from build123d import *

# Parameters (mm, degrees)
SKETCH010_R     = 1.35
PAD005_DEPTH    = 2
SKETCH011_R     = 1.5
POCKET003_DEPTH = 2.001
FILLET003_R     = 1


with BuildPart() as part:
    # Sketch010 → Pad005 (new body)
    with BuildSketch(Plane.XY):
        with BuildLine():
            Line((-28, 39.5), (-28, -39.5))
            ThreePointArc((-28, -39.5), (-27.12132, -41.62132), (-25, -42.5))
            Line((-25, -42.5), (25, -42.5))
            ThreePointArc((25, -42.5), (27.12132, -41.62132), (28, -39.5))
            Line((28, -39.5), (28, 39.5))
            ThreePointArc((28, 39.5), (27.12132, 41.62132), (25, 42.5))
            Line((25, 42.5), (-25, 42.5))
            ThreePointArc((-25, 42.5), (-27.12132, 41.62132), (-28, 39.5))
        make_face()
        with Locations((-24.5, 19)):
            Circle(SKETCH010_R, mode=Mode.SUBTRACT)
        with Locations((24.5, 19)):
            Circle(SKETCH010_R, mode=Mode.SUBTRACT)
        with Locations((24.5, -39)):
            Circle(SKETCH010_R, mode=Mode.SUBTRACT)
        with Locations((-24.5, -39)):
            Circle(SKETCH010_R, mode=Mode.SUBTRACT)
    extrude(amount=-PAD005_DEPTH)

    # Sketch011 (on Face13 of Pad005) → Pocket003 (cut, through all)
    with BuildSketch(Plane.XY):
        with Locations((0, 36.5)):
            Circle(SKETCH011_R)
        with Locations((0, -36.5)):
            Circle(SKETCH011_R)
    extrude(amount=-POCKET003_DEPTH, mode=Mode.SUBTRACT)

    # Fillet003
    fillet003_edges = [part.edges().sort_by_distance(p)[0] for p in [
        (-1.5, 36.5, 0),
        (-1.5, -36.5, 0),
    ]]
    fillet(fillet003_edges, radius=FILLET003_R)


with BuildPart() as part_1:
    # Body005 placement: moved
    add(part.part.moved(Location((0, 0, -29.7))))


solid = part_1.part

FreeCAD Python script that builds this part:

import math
import FreeCAD as App
import Part
import Sketcher
from FreeCAD import Vector


def edges_at(feature, points):
    """Names of the edges that pass closest to the given points."""
    edges = feature.Shape.Edges
    near = lambda p: min(range(len(edges)), key=lambda i: edges[i].distToShape(Part.Vertex(*p))[0])
    return sorted({f"Edge{near(p) + 1}" for p in points})

doc = App.newDocument("Part")
params = doc.addObject("Spreadsheet::Sheet", "Params")
for row, (alias, value) in enumerate([
    ("sketch1_radius", "3.000001 mm"),
    ("sketch1_diameter", "2.7 mm"),
    ("sketch1_width", "50 mm"),
    ("sketch1_height", "79 mm"),
    ("pad1_length", "2 mm"),
    ("sketch2_diameter", "3 mm"),
    ("fillet_radius", "1 mm"),
], start=1):
    params.set(f"A{row}", alias)
    params.set(f"B{row}", "=" + value)
    params.setAlias(f"B{row}", alias)

body = doc.addObject("PartDesign::Body", "Body")

sketch1 = doc.addObject("Sketcher::SketchObject", "Sketch")
body.addObject(sketch1)
sketch1.AttachmentSupport = (doc.XY_Plane, [""])
sketch1.MapMode = "FlatFace"
sketch1.addGeometry(Part.LineSegment(Vector(-28, 39.5, 0), Vector(-28, -39.5, 0)), False)
sketch1.addGeometry(Part.ArcOfCircle(Part.Circle(Vector(-25, -39.5, 0), Vector(0, 0, 1), 3), math.radians(-180), math.radians(-90)), False)
sketch1.addGeometry(Part.LineSegment(Vector(-25, -42.5, 0), Vector(25, -42.5, 0)), False)
sketch1.addGeometry(Part.ArcOfCircle(Part.Circle(Vector(25, -39.5, 0), Vector(0, 0, 1), 3), math.radians(-90), math.radians(0)), False)
sketch1.addGeometry(Part.LineSegment(Vector(28, -39.5, 0), Vector(28, 39.5, 0)), False)
sketch1.addGeometry(Part.ArcOfCircle(Part.Circle(Vector(25, 39.5, 0), Vector(0, 0, 1), 3), math.radians(0), math.radians(90)), False)
sketch1.addGeometry(Part.LineSegment(Vector(25, 42.5, 0), Vector(-25, 42.5, 0)), False)
sketch1.addGeometry(Part.ArcOfCircle(Part.Circle(Vector(-25, 39.5, 0), Vector(0, 0, 1), 3), math.radians(90), math.radians(180)), False)
sketch1.addGeometry(Part.Circle(Vector(-24.5, -39, 0), Vector(0, 0, 1), 1.4), False)
sketch1.addGeometry(Part.Circle(Vector(24.5, -39, 0), Vector(0, 0, 1), 1.4), False)
sketch1.addGeometry(Part.Circle(Vector(-24.5, 19, 0), Vector(0, 0, 1), 1.4), False)
sketch1.addGeometry(Part.Circle(Vector(24.5, 19, 0), Vector(0, 0, 1), 1.4), False)
sketch1.addConstraint(Sketcher.Constraint("Tangent", 0, 2, 1, 1))
sketch1.addConstraint(Sketcher.Constraint("Tangent", 1, 2, 2, 1))
sketch1.addConstraint(Sketcher.Constraint("Tangent", 2, 2, 3, 1))
sketch1.addConstraint(Sketcher.Constraint("Tangent", 3, 2, 4, 1))
sketch1.addConstraint(Sketcher.Constraint("Tangent", 4, 2, 5, 1))
sketch1.addConstraint(Sketcher.Constraint("Tangent", 5, 2, 6, 1))
sketch1.addConstraint(Sketcher.Constraint("Tangent", 6, 2, 7, 1))
sketch1.addConstraint(Sketcher.Constraint("Tangent", 7, 2, 0, 1))
sketch1.addConstraint(Sketcher.Constraint("Vertical", 0))
sketch1.addConstraint(Sketcher.Constraint("Horizontal", 2))
sketch1.addConstraint(Sketcher.Constraint("Vertical", 4))
sketch1.addConstraint(Sketcher.Constraint("Horizontal", 6))
sketch1.addConstraint(Sketcher.Constraint("Equal", 1, 3))
sketch1.addConstraint(Sketcher.Constraint("Equal", 3, 5))
sketch1.addConstraint(Sketcher.Constraint("Equal", 5, 7))
sketch1.addConstraint(Sketcher.Constraint("Equal", 8, 9))
sketch1.addConstraint(Sketcher.Constraint("Equal", 9, 10))
sketch1.addConstraint(Sketcher.Constraint("Equal", 10, 11))
sketch1.addConstraint(Sketcher.Constraint("Symmetric", 1, 3, 5, 3, -1, 1))
sketch1.addConstraint(Sketcher.Constraint("Symmetric", 8, 3, 9, 3, -2))
sketch1.addConstraint(Sketcher.Constraint("Symmetric", 10, 3, 11, 3, -2))
sketch1.addConstraint(Sketcher.Constraint("Vertical", 8, 3, 10, 3))
sketch1.addConstraint(Sketcher.Constraint("Radius", 1, 3.000001))
sketch1.addConstraint(Sketcher.Constraint("Diameter", 8, 2.7))
sketch1.addConstraint(Sketcher.Constraint("DistanceX", 2, 1, 2, 2, 50.0))
sketch1.addConstraint(Sketcher.Constraint("DistanceY", 0, 2, 0, 1, 79.0))
sketch1.addConstraint(Sketcher.Constraint("DistanceY", 8, 3, -1, 1, 39.0))
sketch1.addConstraint(Sketcher.Constraint("DistanceY", -1, 1, 10, 3, 19.0))
sketch1.addConstraint(Sketcher.Constraint("DistanceX", 8, 3, 9, 3, 49.0))
sketch1.setExpression("Constraints[22]", "Params.sketch1_radius")
sketch1.setExpression("Constraints[23]", "Params.sketch1_diameter")
sketch1.setExpression("Constraints[24]", "Params.sketch1_width")
sketch1.setExpression("Constraints[25]", "Params.sketch1_height")
pad1 = doc.addObject("PartDesign::Pad", "Pad")
body.addObject(pad1)
pad1.Profile = sketch1
pad1.setExpression("Length", "Params.pad1_length")
pad1.Reversed = True

sketch2 = doc.addObject("Sketcher::SketchObject", "Sketch001")
body.addObject(sketch2)
sketch2.AttachmentSupport = (doc.XY_Plane, [""])
sketch2.MapMode = "FlatFace"
sketch2.addGeometry(Part.Circle(Vector(0, 36.5, 0), Vector(0, 0, 1), 1.5), False)
sketch2.addGeometry(Part.Circle(Vector(0, -36.5, 0), Vector(0, 0, 1), 1.5), False)
sketch2.addConstraint(Sketcher.Constraint("Equal", 0, 1))
sketch2.addConstraint(Sketcher.Constraint("Symmetric", 0, 3, 1, 3, -1, 1))
sketch2.addConstraint(Sketcher.Constraint("PointOnObject", 0, 3, -2))
sketch2.addConstraint(Sketcher.Constraint("Diameter", 0, 3.0))
sketch2.addConstraint(Sketcher.Constraint("DistanceY", 1, 3, 0, 3, 73.0))
sketch2.setExpression("Constraints[3]", "Params.sketch2_diameter")
pocket1 = doc.addObject("PartDesign::Pocket", "Pocket")
body.addObject(pocket1)
pocket1.Profile = sketch2
pocket1.Type = "ThroughAll"
doc.recompute()

fillet = doc.addObject("PartDesign::Fillet", "Fillet")
body.addObject(fillet)
fillet.Base = (pocket1, edges_at(pocket1, [(-1.5, 36.5, 0), (-1.5, -36.5, 0)]))
fillet.setExpression("Radius", "Params.fillet_radius")
body2 = doc.addObject("PartDesign::Body", "Body001")
doc.recompute()

body.Placement = App.Placement(Vector(0, 0, -29.7), App.Rotation(Vector(0, 0, 1), 0))
boolean = doc.addObject("PartDesign::Boolean", "Boolean")
body2.addObject(boolean)
boolean.Type = "Fuse"
boolean.addObjects([body])

doc.recompute()
